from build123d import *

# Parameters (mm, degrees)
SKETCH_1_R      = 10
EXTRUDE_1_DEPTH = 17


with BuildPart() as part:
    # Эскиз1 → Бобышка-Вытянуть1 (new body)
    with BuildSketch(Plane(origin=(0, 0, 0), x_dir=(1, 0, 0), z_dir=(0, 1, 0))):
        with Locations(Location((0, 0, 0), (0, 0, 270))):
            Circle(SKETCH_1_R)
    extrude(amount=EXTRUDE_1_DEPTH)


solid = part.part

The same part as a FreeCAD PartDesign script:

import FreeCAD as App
import Part
import Sketcher
from FreeCAD import Vector

doc = App.newDocument("Part")
body = doc.addObject("PartDesign::Body", "Body")

# Sketch on XZ plane
sketch1 = doc.addObject("Sketcher::SketchObject", "Sketch")
body.addObject(sketch1)
sketch1.AttachmentSupport = (doc.XZ_Plane, [""])
sketch1.MapMode = "FlatFace"
sketch1.addGeometry(Part.Circle(Vector(0, 0, 0), Vector(0, 0, 1), 10), False)
sketch1.addConstraint(Sketcher.Constraint("Coincident", 0, 3, -1, 1))
sketch1.addConstraint(Sketcher.Constraint("Diameter", 0, 20.0))
pad1 = doc.addObject("PartDesign::Pad", "Pad")
body.addObject(pad1)
pad1.Profile = sketch1
pad1.Length = 17
pad1.Reversed = True

doc.recompute()
